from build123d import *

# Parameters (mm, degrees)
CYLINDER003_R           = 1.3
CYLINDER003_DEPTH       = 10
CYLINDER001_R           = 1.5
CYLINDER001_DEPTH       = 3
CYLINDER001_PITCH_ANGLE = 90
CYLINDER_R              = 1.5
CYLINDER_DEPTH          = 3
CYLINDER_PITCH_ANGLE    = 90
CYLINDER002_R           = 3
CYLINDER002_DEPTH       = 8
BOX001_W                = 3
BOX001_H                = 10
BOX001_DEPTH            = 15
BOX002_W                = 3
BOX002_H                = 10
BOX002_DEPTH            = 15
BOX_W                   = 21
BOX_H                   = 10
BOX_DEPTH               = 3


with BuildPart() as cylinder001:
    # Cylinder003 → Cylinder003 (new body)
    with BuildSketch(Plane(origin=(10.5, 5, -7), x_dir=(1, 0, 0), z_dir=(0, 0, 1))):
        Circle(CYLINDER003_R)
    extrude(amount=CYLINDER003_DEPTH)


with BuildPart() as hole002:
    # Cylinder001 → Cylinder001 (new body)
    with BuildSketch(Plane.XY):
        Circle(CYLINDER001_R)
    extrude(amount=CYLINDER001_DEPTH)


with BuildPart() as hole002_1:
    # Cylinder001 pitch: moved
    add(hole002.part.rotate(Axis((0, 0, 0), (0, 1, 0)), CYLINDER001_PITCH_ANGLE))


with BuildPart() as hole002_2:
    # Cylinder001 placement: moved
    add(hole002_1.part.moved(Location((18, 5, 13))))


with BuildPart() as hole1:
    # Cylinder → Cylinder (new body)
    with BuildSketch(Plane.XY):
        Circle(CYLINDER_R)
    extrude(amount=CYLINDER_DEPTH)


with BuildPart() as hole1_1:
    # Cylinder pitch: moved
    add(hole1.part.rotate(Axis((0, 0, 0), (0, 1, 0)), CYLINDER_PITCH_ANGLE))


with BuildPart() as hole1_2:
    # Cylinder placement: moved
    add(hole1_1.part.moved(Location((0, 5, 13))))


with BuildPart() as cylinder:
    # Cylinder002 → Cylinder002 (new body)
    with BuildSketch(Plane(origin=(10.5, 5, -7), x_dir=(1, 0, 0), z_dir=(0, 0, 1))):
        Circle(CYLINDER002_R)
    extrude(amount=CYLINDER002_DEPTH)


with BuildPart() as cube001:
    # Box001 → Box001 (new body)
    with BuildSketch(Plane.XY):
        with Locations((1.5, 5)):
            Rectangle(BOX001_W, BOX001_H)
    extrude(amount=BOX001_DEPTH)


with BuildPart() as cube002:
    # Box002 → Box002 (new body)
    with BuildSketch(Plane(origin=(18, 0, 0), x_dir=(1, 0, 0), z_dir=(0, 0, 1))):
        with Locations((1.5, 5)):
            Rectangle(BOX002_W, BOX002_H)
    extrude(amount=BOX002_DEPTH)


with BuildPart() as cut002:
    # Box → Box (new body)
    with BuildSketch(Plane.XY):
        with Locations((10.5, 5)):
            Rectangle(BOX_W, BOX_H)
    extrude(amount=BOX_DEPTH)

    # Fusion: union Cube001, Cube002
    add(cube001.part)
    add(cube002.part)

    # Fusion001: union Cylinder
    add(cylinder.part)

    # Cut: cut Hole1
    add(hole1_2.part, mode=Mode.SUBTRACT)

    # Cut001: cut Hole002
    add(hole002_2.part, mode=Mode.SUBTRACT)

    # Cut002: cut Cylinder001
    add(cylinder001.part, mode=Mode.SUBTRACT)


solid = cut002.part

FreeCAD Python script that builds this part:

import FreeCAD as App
import Part
import Sketcher
Q = App.Units.Quantity

doc = App.newDocument("Part")
body = doc.addObject("PartDesign::Body", "Body")

# Sketch on XY plane
sketch1 = doc.addObject("Sketcher::SketchObject", "Sketch")
body.addObject(sketch1)
sketch1.AttachmentSupport = (doc.XY_Plane, [""])
sketch1.MapMode = "FlatFace"
sketch1.AttachmentOffset = App.Placement(App.Vector(0, 0, -7), App.Rotation())
sketch1.addGeometry(Part.Circle(App.Vector(10.5, 5, 0), App.Vector(0, 0, 1), 1.3), False)
sketch1.addConstraint([
    Sketcher.Constraint("Diameter", 0, Q("2.6 mm")),
    Sketcher.Constraint("DistanceY", -1, 1, 0, 3, Q("5 mm")),
    Sketcher.Constraint("DistanceX", -1, 1, 0, 3, Q("10.5 mm")),
])
pad1 = doc.addObject("PartDesign::Pad", "Pad")
body.addObject(pad1)
pad1.Profile = sketch1
pad1.Length = 10
body2 = doc.addObject("PartDesign::Body", "Body001")

# Sketch on XY plane
sketch2 = doc.addObject("Sketcher::SketchObject", "Sketch001")
body2.addObject(sketch2)
sketch2.AttachmentSupport = (doc.getObject("XY_Plane001"), [""])
sketch2.MapMode = "FlatFace"
sketch2.addGeometry(Part.Circle(App.Vector(0, 0, 0), App.Vector(0, 0, 1), 1.5), False)
sketch2.addConstraint([
    Sketcher.Constraint("Coincident", 0, 3, -1, 1),
    Sketcher.Constraint("Diameter", 0, Q("3 mm")),
])
pad2 = doc.addObject("PartDesign::Pad", "Pad001")
body2.addObject(pad2)
pad2.Profile = sketch2
pad2.Length = 3
body3 = doc.addObject("PartDesign::Body", "Body002")
doc.recompute()

body2.Placement = App.Placement(App.Vector(0, 0, 0), App.Rotation(App.Vector(0, 1, 0), 90))
boolean = doc.addObject("PartDesign::Boolean", "Boolean")
body3.addObject(boolean)
boolean.Type = "Fuse"
boolean.addObjects([body2])
body4 = doc.addObject("PartDesign::Body", "Body003")
doc.recompute()

body3.Placement = App.Placement(App.Vector(18, 5, 13), App.Rotation(App.Vector(0, 0, 1), 0))
boolean2 = doc.addObject("PartDesign::Boolean", "Boolean001")
body4.addObject(boolean2)
boolean2.Type = "Fuse"
boolean2.addObjects([body3])
body5 = doc.addObject("PartDesign::Body", "Body004")

# Sketch on XY plane
sketch3 = doc.addObject("Sketcher::SketchObject", "Sketch002")
body5.addObject(sketch3)
sketch3.AttachmentSupport = (doc.getObject("XY_Plane004"), [""])
sketch3.MapMode = "FlatFace"
sketch3.addGeometry(Part.Circle(App.Vector(0, 0, 0), App.Vector(0, 0, 1), 1.5), False)
sketch3.addConstraint([
    Sketcher.Constraint("Coincident", 0, 3, -1, 1),
    Sketcher.Constraint("Diameter", 0, Q("3 mm")),
])
pad3 = doc.addObject("PartDesign::Pad", "Pad002")
body5.addObject(pad3)
pad3.Profile = sketch3
pad3.Length = 3
body6 = doc.addObject("PartDesign::Body", "Body005")
doc.recompute()

body5.Placement = App.Placement(App.Vector(0, 0, 0), App.Rotation(App.Vector(0, 1, 0), 90))
boolean3 = doc.addObject("PartDesign::Boolean", "Boolean002")
body6.addObject(boolean3)
boolean3.Type = "Fuse"
boolean3.addObjects([body5])
body7 = doc.addObject("PartDesign::Body", "Body006")
doc.recompute()

body6.Placement = App.Placement(App.Vector(0, 5, 13), App.Rotation(App.Vector(0, 0, 1), 0))
boolean4 = doc.addObject("PartDesign::Boolean", "Boolean003")
body7.addObject(boolean4)
boolean4.Type = "Fuse"
boolean4.addObjects([body6])
body8 = doc.addObject("PartDesign::Body", "Body007")

# Sketch on XY plane
sketch4 = doc.addObject("Sketcher::SketchObject", "Sketch003")
body8.addObject(sketch4)
sketch4.AttachmentSupport = (doc.getObject("XY_Plane007"), [""])
sketch4.MapMode = "FlatFace"
sketch4.AttachmentOffset = App.Placement(App.Vector(0, 0, -7), App.Rotation())
sketch4.addGeometry(Part.Circle(App.Vector(10.5, 5, 0), App.Vector(0, 0, 1), 3), False)
sketch4.addConstraint([
    Sketcher.Constraint("Diameter", 0, Q("6 mm")),
    Sketcher.Constraint("DistanceY", -1, 1, 0, 3, Q("5 mm")),
    Sketcher.Constraint("DistanceX", -1, 1, 0, 3, Q("10.5 mm")),
])
pad4 = doc.addObject("PartDesign::Pad", "Pad003")
body8.addObject(pad4)
pad4.Profile = sketch4
pad4.Length = 8
body9 = doc.addObject("PartDesign::Body", "Body008")

# Sketch on XY plane
sketch5 = doc.addObject("Sketcher::SketchObject", "Sketch004")
body9.addObject(sketch5)
sketch5.AttachmentSupport = (doc.getObject("XY_Plane008"), [""])
sketch5.MapMode = "FlatFace"
sketch5.addGeometry([
    Part.LineSegment(App.Vector(0, 10, 0), App.Vector(0, 0, 0)),
    Part.LineSegment(App.Vector(0, 0, 0), App.Vector(3, 0, 0)),
    Part.LineSegment(App.Vector(3, 0, 0), App.Vector(3, 10, 0)),
    Part.LineSegment(App.Vector(3, 10, 0), App.Vector(0, 10, 0)),
], False)
sketch5.addConstraint([
    Sketcher.Constraint("Coincident", 0, 2, 1, 1),
    Sketcher.Constraint("Coincident", 1, 2, 2, 1),
    Sketcher.Constraint("Coincident", 2, 2, 3, 1),
    Sketcher.Constraint("Coincident", 3, 2, 0, 1),
    Sketcher.Constraint("Vertical", 0),
    Sketcher.Constraint("Horizontal", 1),
    Sketcher.Constraint("Vertical", 2),
    Sketcher.Constraint("Horizontal", 3),
    Sketcher.Constraint("Coincident", 0, 2, -1, 1),
    Sketcher.Constraint("DistanceX", 1, 1, 1, 2, Q("3 mm")),
    Sketcher.Constraint("DistanceY", 0, 2, 0, 1, Q("10 mm")),
])
pad5 = doc.addObject("PartDesign::Pad", "Pad004")
body9.addObject(pad5)
pad5.Profile = sketch5
pad5.Length = 15
body10 = doc.addObject("PartDesign::Body", "Body009")

# Sketch on XY plane
sketch6 = doc.addObject("Sketcher::SketchObject", "Sketch005")
body10.addObject(sketch6)
sketch6.AttachmentSupport = (doc.getObject("XY_Plane009"), [""])
sketch6.MapMode = "FlatFace"
sketch6.addGeometry([
    Part.LineSegment(App.Vector(18, 10, 0), App.Vector(18, 0, 0)),
    Part.LineSegment(App.Vector(18, 0, 0), App.Vector(21, 0, 0)),
    Part.LineSegment(App.Vector(21, 0, 0), App.Vector(21, 10, 0)),
    Part.LineSegment(App.Vector(21, 10, 0), App.Vector(18, 10, 0)),
], False)
sketch6.addConstraint([
    Sketcher.Constraint("Coincident", 0, 2, 1, 1),
    Sketcher.Constraint("Coincident", 1, 2, 2, 1),
    Sketcher.Constraint("Coincident", 2, 2, 3, 1),
    Sketcher.Constraint("Coincident", 3, 2, 0, 1),
    Sketcher.Constraint("Vertical", 0),
    Sketcher.Constraint("Horizontal", 1),
    Sketcher.Constraint("Vertical", 2),
    Sketcher.Constraint("Horizontal", 3),
    Sketcher.Constraint("PointOnObject", 0, 2, -1),
    Sketcher.Constraint("DistanceX", 1, 1, 1, 2, Q("3 mm")),
    Sketcher.Constraint("DistanceY", 0, 2, 0, 1, Q("10 mm")),
    Sketcher.Constraint("DistanceX", -1, 1, 0, 2, Q("18 mm")),
])
pad6 = doc.addObject("PartDesign::Pad", "Pad005")
body10.addObject(pad6)
pad6.Profile = sketch6
pad6.Length = 15
body11 = doc.addObject("PartDesign::Body", "Body010")

# Sketch on XY plane
sketch7 = doc.addObject("Sketcher::SketchObject", "Sketch006")
body11.addObject(sketch7)
sketch7.AttachmentSupport = (doc.getObject("XY_Plane010"), [""])
sketch7.MapMode = "FlatFace"
sketch7.addGeometry([
    Part.LineSegment(App.Vector(0, 10, 0), App.Vector(0, 0, 0)),
    Part.LineSegment(App.Vector(0, 0, 0), App.Vector(21, 0, 0)),
    Part.LineSegment(App.Vector(21, 0, 0), App.Vector(21, 10, 0)),
    Part.LineSegment(App.Vector(21, 10, 0), App.Vector(0, 10, 0)),
], False)
sketch7.addConstraint([
    Sketcher.Constraint("Coincident", 0, 2, 1, 1),
    Sketcher.Constraint("Coincident", 1, 2, 2, 1),
    Sketcher.Constraint("Coincident", 2, 2, 3, 1),
    Sketcher.Constraint("Coincident", 3, 2, 0, 1),
    Sketcher.Constraint("Vertical", 0),
    Sketcher.Constraint("Horizontal", 1),
    Sketcher.Constraint("Vertical", 2),
    Sketcher.Constraint("Horizontal", 3),
    Sketcher.Constraint("Coincident", 0, 2, -1, 1),
    Sketcher.Constraint("DistanceX", 1, 1, 1, 2, Q("21 mm")),
    Sketcher.Constraint("DistanceY", 0, 2, 0, 1, Q("10 mm")),
])
pad7 = doc.addObject("PartDesign::Pad", "Pad006")
body11.addObject(pad7)
pad7.Profile = sketch7
pad7.Length = 3
doc.recompute()

boolean5 = doc.addObject("PartDesign::Boolean", "Boolean004")
body11.addObject(boolean5)
boolean5.Type = "Fuse"
boolean5.addObjects([body9])
doc.recompute()

boolean6 = doc.addObject("PartDesign::Boolean", "Boolean005")
body11.addObject(boolean6)
boolean6.Type = "Fuse"
boolean6.addObjects([body10])
doc.recompute()

boolean7 = doc.addObject("PartDesign::Boolean", "Boolean006")
body11.addObject(boolean7)
boolean7.Type = "Fuse"
boolean7.addObjects([body8])
doc.recompute()

boolean8 = doc.addObject("PartDesign::Boolean", "Boolean007")
body11.addObject(boolean8)
boolean8.Type = "Cut"
boolean8.addObjects([body7])
doc.recompute()

boolean9 = doc.addObject("PartDesign::Boolean", "Boolean008")
body11.addObject(boolean9)
boolean9.Type = "Cut"
boolean9.addObjects([body4])
doc.recompute()

boolean10 = doc.addObject("PartDesign::Boolean", "Boolean009")
body11.addObject(boolean10)
boolean10.Type = "Cut"
boolean10.addObjects([body])

doc.recompute()
